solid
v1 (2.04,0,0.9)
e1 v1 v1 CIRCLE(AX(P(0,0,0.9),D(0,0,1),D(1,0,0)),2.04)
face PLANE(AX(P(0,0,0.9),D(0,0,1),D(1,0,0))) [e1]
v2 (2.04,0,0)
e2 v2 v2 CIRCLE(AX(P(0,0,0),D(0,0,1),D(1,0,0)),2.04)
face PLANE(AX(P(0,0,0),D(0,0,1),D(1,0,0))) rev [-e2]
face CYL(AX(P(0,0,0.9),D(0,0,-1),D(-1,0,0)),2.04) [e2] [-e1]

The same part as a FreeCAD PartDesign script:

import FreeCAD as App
import Part
import Sketcher

V = App.Vector
Q = App.Units.Quantity

doc = App.newDocument("Part")
body = doc.addObject("PartDesign::Body", "Body")

# Sketch on XY plane
sketch1 = doc.addObject("Sketcher::SketchObject", "Sketch")
body.addObject(sketch1)
sketch1.AttachmentSupport = (doc.XY_Plane, [""])
sketch1.MapMode = "FlatFace"
sketch1.addGeometry(Part.Circle(V(0, 0, 0), V(0, 0, 1), 2), False)
sketch1.addConstraint([
    Sketcher.Constraint("Coincident", 0, 3, -1, 1),
    Sketcher.Constraint("Diameter", 0, Q("4.08 mm")),
])
pad1 = doc.addObject("PartDesign::Pad", "Pad")
body.addObject(pad1)
pad1.Profile = sketch1
pad1.Length = 0.9

doc.recompute()
